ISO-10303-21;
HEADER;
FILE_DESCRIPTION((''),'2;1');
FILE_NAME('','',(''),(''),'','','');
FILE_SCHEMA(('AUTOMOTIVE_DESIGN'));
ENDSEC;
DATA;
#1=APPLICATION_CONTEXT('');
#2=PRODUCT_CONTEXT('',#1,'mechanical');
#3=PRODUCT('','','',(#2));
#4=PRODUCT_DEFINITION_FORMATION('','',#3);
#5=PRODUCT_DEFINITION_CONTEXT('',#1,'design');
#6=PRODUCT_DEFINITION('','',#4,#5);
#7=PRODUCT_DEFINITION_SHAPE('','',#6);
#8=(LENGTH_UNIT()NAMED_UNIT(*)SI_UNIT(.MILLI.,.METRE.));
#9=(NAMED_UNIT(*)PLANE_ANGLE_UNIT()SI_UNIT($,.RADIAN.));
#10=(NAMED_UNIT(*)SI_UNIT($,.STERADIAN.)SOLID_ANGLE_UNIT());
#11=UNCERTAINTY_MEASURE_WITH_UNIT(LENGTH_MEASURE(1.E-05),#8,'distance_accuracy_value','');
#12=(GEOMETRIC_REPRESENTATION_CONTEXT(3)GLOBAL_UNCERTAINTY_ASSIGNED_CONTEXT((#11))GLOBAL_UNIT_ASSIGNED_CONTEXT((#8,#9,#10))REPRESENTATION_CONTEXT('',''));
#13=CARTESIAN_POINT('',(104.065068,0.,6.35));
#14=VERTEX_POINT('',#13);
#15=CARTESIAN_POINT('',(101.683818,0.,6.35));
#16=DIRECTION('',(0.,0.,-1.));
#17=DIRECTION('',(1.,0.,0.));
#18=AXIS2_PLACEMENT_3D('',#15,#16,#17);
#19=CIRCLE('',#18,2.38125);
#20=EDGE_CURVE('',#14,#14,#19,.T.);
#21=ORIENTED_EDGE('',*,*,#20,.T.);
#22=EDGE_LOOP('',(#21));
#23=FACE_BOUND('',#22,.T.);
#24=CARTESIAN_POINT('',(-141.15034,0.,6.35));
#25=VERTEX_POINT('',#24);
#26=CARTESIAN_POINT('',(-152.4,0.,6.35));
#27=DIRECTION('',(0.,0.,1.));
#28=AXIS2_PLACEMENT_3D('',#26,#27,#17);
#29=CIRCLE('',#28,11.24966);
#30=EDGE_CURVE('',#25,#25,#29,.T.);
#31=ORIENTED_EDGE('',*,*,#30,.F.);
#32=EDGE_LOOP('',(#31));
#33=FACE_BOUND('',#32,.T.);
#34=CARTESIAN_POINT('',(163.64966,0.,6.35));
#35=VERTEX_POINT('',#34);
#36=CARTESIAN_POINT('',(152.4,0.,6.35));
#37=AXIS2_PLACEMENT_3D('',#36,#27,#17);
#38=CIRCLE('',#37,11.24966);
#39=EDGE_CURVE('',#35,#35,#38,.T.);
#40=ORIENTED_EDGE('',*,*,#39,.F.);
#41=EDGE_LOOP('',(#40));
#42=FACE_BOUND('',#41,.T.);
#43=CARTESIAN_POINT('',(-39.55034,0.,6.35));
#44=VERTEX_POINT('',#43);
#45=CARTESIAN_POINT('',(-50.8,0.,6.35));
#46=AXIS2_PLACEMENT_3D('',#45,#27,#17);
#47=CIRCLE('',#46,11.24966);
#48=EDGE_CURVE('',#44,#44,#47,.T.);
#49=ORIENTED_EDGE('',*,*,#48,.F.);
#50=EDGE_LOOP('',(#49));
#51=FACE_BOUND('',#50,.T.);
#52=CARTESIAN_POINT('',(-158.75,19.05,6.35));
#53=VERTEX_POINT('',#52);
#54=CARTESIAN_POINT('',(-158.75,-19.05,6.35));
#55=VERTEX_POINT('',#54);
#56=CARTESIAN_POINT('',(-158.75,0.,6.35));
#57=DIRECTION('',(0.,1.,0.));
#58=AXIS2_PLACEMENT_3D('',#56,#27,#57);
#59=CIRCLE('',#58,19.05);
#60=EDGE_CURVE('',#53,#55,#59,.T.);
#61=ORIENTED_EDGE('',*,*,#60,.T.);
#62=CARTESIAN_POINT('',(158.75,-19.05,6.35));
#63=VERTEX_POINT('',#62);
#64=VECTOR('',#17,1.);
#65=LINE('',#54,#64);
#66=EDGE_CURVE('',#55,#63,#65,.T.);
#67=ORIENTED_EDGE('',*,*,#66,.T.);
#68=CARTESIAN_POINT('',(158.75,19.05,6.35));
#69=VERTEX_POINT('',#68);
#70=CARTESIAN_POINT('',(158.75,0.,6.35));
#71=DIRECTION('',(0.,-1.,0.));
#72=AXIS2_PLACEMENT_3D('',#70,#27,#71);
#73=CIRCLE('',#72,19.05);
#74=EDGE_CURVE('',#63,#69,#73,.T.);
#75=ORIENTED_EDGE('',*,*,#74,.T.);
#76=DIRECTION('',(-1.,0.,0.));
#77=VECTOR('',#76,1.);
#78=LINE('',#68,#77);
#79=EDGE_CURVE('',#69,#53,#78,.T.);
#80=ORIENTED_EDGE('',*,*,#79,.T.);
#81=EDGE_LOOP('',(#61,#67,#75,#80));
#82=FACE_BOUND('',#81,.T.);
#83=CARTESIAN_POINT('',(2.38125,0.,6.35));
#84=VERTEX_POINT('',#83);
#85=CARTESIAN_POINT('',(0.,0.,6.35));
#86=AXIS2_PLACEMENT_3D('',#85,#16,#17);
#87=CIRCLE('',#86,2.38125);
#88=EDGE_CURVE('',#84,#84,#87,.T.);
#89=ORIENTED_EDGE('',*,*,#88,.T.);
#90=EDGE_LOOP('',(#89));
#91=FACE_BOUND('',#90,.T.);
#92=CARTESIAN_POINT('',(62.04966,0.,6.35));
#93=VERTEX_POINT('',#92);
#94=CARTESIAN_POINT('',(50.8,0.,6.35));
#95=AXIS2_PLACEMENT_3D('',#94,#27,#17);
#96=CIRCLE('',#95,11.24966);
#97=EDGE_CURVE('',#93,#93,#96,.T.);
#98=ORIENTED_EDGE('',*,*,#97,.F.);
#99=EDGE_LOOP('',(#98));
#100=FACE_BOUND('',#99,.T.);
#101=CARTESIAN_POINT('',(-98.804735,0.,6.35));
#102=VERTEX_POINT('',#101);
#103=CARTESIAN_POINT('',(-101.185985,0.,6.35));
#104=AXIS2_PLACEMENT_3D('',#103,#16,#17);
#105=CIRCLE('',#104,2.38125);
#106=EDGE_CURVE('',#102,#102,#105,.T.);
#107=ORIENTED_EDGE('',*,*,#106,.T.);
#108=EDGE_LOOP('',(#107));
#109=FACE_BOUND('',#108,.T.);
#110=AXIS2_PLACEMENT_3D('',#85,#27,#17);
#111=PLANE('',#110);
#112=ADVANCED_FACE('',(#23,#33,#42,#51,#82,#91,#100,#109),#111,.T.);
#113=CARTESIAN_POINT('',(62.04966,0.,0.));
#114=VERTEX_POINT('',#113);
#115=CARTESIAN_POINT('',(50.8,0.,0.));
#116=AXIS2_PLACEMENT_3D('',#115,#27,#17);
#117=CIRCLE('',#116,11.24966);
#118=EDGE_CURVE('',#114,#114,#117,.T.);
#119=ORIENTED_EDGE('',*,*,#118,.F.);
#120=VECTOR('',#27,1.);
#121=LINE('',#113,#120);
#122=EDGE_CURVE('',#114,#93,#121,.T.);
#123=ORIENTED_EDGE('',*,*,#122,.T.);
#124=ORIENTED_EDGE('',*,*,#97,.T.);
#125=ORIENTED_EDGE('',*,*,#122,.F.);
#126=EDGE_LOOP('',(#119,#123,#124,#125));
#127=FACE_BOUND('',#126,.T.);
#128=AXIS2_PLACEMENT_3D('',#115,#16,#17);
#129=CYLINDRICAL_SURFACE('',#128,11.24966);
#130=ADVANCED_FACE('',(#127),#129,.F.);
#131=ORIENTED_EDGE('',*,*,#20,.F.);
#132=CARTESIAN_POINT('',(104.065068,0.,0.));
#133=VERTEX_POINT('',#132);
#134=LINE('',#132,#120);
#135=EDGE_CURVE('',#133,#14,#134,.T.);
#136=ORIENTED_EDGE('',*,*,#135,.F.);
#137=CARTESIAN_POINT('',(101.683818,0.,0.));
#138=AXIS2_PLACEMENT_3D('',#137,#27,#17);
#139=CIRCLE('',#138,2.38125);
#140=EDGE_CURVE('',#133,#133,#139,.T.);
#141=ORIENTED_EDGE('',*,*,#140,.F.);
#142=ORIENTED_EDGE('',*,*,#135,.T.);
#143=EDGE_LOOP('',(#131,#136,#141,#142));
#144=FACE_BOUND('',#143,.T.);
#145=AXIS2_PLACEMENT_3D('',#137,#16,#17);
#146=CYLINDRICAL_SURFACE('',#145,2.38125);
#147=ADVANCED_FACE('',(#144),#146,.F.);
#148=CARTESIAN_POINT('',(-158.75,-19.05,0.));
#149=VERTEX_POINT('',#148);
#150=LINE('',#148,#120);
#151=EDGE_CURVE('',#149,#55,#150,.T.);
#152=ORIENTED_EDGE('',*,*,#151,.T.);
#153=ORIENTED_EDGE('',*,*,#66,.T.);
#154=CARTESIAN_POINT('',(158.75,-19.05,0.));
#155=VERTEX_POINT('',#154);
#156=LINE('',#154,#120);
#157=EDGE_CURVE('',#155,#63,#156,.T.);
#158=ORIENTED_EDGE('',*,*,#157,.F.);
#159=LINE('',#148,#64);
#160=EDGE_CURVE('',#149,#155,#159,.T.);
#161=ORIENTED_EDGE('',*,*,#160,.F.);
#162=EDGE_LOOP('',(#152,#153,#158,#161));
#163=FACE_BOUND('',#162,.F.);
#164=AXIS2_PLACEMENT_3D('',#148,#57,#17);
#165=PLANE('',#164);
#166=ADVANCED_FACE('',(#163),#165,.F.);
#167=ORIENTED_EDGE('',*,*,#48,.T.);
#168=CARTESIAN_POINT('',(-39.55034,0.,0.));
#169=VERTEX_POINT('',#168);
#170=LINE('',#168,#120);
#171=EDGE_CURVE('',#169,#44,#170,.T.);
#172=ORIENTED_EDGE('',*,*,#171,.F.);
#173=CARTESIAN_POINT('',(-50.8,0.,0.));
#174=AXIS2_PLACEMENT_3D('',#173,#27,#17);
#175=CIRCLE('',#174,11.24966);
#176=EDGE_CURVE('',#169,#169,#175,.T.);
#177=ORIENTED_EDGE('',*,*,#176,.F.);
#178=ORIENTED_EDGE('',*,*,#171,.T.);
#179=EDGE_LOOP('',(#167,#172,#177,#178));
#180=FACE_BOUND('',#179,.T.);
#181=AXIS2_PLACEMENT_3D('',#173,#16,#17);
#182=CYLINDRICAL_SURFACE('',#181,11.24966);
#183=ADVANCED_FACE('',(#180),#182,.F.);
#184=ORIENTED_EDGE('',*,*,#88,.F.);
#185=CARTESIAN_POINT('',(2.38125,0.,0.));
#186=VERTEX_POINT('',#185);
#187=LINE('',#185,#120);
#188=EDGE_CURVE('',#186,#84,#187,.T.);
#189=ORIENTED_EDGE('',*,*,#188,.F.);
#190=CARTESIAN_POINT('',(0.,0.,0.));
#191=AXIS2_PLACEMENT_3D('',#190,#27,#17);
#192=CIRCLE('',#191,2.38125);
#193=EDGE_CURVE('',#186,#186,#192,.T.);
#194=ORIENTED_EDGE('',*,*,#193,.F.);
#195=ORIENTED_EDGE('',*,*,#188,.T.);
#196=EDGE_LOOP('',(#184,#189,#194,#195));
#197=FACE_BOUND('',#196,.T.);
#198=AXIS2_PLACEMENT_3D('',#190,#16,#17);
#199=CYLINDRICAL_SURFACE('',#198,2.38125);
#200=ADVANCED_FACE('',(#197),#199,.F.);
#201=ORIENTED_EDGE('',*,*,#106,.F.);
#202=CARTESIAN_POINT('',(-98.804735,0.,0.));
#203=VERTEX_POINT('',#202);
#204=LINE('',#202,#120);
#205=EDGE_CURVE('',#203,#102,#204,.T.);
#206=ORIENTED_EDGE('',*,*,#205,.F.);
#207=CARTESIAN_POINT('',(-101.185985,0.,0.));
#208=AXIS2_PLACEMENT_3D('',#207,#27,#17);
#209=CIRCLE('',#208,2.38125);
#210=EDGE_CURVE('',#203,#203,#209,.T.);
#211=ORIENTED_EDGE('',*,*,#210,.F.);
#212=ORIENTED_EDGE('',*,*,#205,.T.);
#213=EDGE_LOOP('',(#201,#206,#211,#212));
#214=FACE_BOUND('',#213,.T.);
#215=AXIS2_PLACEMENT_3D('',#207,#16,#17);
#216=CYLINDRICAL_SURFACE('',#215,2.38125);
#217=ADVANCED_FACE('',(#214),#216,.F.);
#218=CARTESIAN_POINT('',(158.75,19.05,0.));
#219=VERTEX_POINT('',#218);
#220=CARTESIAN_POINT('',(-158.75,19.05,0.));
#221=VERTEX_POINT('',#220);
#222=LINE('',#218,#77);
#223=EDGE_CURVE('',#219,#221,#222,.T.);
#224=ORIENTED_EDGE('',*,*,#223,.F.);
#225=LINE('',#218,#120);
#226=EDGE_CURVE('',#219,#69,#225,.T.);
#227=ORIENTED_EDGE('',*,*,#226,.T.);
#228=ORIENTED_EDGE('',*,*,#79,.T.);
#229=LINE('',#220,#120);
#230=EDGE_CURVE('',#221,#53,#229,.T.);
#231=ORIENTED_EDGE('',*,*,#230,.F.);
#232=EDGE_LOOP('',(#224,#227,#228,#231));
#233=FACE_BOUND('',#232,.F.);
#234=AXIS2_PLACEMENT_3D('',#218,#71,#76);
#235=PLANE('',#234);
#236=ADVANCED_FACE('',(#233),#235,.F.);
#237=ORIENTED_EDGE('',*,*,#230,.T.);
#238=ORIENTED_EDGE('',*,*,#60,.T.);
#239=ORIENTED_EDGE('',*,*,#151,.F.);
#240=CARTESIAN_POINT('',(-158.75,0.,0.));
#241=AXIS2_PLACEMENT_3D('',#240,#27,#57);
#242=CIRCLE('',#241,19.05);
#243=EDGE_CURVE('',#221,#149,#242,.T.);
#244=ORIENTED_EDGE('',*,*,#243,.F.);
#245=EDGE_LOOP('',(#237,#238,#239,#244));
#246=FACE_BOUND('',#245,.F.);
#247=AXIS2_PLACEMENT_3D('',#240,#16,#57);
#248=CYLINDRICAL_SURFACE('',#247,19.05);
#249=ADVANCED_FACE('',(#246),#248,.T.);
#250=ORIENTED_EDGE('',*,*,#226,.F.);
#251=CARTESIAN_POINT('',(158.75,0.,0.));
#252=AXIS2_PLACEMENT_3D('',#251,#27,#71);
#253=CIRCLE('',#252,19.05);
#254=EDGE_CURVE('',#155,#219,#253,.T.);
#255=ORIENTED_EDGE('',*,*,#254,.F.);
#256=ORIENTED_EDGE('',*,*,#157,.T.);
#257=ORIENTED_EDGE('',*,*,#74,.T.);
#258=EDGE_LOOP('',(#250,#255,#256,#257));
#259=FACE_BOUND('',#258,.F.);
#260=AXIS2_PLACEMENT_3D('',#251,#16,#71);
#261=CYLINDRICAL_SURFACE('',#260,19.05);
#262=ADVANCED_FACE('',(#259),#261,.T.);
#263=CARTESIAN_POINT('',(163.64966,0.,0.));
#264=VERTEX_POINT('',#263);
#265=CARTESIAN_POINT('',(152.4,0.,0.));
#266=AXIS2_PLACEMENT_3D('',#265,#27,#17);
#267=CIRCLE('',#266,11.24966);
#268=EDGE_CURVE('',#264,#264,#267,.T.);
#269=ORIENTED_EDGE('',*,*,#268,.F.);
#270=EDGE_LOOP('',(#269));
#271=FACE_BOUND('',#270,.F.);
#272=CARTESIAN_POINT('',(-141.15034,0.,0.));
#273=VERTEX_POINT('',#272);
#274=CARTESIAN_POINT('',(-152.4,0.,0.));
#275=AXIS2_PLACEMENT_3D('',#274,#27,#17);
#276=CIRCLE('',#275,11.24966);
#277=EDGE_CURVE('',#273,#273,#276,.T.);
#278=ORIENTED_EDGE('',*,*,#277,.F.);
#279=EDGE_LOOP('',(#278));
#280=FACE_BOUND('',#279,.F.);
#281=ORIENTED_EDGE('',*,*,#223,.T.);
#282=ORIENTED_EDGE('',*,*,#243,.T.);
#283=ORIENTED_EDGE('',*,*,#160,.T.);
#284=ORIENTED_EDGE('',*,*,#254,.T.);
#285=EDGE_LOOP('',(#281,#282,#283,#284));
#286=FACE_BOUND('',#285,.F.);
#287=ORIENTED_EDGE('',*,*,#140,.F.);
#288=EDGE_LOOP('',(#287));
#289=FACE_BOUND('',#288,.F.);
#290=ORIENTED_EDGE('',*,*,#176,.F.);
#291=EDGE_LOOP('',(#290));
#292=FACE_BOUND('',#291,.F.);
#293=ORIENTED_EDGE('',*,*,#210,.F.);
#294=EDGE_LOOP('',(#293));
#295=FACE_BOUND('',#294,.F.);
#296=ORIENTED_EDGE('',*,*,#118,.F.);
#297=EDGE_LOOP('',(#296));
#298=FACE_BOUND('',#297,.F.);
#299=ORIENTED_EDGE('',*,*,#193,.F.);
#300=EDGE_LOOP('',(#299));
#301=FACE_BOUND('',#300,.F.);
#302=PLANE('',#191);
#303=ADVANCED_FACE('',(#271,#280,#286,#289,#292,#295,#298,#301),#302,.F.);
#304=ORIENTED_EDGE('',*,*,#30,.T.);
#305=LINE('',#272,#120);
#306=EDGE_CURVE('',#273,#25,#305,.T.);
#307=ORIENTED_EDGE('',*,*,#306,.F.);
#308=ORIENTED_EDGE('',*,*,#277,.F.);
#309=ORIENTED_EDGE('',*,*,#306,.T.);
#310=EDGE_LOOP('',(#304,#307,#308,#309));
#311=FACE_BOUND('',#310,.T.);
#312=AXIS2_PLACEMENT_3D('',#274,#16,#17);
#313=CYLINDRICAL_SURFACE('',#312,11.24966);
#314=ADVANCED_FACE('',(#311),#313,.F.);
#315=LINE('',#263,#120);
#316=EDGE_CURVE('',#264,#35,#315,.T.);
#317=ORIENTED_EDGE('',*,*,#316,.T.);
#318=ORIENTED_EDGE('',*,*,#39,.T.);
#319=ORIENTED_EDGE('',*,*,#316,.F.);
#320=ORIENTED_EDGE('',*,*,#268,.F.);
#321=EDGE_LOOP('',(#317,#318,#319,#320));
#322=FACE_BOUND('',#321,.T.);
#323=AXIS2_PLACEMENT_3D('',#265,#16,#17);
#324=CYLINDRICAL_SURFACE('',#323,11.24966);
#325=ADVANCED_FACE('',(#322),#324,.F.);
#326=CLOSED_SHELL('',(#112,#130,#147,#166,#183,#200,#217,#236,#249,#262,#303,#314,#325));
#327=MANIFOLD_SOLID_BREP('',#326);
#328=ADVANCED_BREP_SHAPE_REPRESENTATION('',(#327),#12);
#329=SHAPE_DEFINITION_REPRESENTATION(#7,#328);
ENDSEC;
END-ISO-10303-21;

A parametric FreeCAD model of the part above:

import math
import FreeCAD as App
import Part
import Sketcher
from FreeCAD import Vector
Q = App.Units.Quantity

doc = App.newDocument("Part")
body = doc.addObject("PartDesign::Body", "Body")

# Sketch on XY plane
sketch1 = body.newObject("Sketcher::SketchObject", "Sketch")
sketch1.AttachmentSupport = (doc.getObject("XY_Plane"), [""])
sketch1.MapMode = "FlatFace"
sketch1.addGeometry(Part.LineSegment(Vector(158.75, 19.05, 0), Vector(-158.75, 19.05, 0)), False)
sketch1.addGeometry(Part.ArcOfCircle(Part.Circle(Vector(-158.75, 0, 0), Vector(0, 0, 1), 19.05), math.radians(90), math.radians(270)), False)
sketch1.addGeometry(Part.LineSegment(Vector(-158.75, -19.05, 0), Vector(158.75, -19.05, 0)), False)
sketch1.addGeometry(Part.ArcOfCircle(Part.Circle(Vector(158.75, 0, 0), Vector(0, 0, 1), 19.05), math.radians(-90), math.radians(90)), False)
sketch1.addGeometry(Part.Circle(Vector(-152.4, 0, 0), Vector(0, 0, 1), 11.24966), False)
sketch1.addGeometry(Part.Circle(Vector(-50.8, 0, 0), Vector(0, 0, 1), 11.24966), False)
sketch1.addGeometry(Part.Circle(Vector(50.8, 0, 0), Vector(0, 0, 1), 11.24966), False)
sketch1.addGeometry(Part.Circle(Vector(152.4, 0, 0), Vector(0, 0, 1), 11.24966), False)
sketch1.addConstraint(Sketcher.Constraint("Tangent", 0, 2, 1, 1))
sketch1.addConstraint(Sketcher.Constraint("Tangent", 1, 2, 2, 1))
sketch1.addConstraint(Sketcher.Constraint("Tangent", 2, 2, 3, 1))
sketch1.addConstraint(Sketcher.Constraint("Tangent", 3, 2, 0, 1))
sketch1.addConstraint(Sketcher.Constraint("Horizontal", 0))
sketch1.addConstraint(Sketcher.Constraint("Horizontal", 2))
sketch1.addConstraint(Sketcher.Constraint("Equal", 4, 5))
sketch1.addConstraint(Sketcher.Constraint("Equal", 5, 6))
sketch1.addConstraint(Sketcher.Constraint("Equal", 6, 7))
sketch1.addConstraint(Sketcher.Constraint("Symmetric", 1, 3, 3, 3, -1, 1))
sketch1.addConstraint(Sketcher.Constraint("Symmetric", 5, 3, 6, 3, -1, 1))
sketch1.addConstraint(Sketcher.Constraint("Symmetric", 4, 3, 7, 3, -1, 1))
sketch1.addConstraint(Sketcher.Constraint("PointOnObject", 4, 3, -1))
sketch1.addConstraint(Sketcher.Constraint("PointOnObject", 5, 3, -1))
sketch1.addConstraint(Sketcher.Constraint("Radius", 1, Q("0.75 in")))
sketch1.addConstraint(Sketcher.Constraint("DistanceX", 0, 2, 0, 1, Q("12.5 in")))
sketch1.addConstraint(Sketcher.Constraint("DistanceX", 4, 3, -1, 1, Q("6 in")))
sketch1.addConstraint(Sketcher.Constraint("DistanceX", 5, 3, -1, 1, Q("2 in")))
sketch1.addConstraint(Sketcher.Constraint("Diameter", 4, Q("0.8858 in")))
pad1 = body.newObject("PartDesign::Pad", "Pad")
pad1.Profile = sketch1
pad1.Length = Q("0.25 in")

# Sketch on XY plane
sketch2 = body.newObject("Sketcher::SketchObject", "Sketch001")
sketch2.AttachmentSupport = (doc.getObject("XY_Plane"), [""])
sketch2.MapMode = "FlatFace"
sketch2.addGeometry(Part.Circle(Vector(-101.185985, 0, 0), Vector(0, 0, 1), 2.38125), False)
sketch2.addGeometry(Part.Circle(Vector(0, 0, 0), Vector(0, 0, 1), 2.38125), False)
sketch2.addGeometry(Part.Circle(Vector(101.683818, 0, 0), Vector(0, 0, 1), 2.38125), False)
sketch2.addConstraint(Sketcher.Constraint("Coincident", 1, 3, -1, 1))
sketch2.addConstraint(Sketcher.Constraint("Equal", 0, 1))
sketch2.addConstraint(Sketcher.Constraint("Equal", 1, 2))
sketch2.addConstraint(Sketcher.Constraint("PointOnObject", 0, 3, -1))
sketch2.addConstraint(Sketcher.Constraint("PointOnObject", 2, 3, -1))
sketch2.addConstraint(Sketcher.Constraint("Diameter", 0, Q("0.1875 in")))
sketch2.addConstraint(Sketcher.Constraint("DistanceX", 0, 3, 2, 3, Q("7.9870001 in")))
sketch2.addConstraint(Sketcher.Constraint("DistanceX", 0, 3, -1, 1, Q("3.9837002 in")))
pocket1 = body.newObject("PartDesign::Pocket", "Pocket")
pocket1.Profile = sketch2
pocket1.Length = Q("1 in")
pocket1.Reversed = True

doc.recompute()
